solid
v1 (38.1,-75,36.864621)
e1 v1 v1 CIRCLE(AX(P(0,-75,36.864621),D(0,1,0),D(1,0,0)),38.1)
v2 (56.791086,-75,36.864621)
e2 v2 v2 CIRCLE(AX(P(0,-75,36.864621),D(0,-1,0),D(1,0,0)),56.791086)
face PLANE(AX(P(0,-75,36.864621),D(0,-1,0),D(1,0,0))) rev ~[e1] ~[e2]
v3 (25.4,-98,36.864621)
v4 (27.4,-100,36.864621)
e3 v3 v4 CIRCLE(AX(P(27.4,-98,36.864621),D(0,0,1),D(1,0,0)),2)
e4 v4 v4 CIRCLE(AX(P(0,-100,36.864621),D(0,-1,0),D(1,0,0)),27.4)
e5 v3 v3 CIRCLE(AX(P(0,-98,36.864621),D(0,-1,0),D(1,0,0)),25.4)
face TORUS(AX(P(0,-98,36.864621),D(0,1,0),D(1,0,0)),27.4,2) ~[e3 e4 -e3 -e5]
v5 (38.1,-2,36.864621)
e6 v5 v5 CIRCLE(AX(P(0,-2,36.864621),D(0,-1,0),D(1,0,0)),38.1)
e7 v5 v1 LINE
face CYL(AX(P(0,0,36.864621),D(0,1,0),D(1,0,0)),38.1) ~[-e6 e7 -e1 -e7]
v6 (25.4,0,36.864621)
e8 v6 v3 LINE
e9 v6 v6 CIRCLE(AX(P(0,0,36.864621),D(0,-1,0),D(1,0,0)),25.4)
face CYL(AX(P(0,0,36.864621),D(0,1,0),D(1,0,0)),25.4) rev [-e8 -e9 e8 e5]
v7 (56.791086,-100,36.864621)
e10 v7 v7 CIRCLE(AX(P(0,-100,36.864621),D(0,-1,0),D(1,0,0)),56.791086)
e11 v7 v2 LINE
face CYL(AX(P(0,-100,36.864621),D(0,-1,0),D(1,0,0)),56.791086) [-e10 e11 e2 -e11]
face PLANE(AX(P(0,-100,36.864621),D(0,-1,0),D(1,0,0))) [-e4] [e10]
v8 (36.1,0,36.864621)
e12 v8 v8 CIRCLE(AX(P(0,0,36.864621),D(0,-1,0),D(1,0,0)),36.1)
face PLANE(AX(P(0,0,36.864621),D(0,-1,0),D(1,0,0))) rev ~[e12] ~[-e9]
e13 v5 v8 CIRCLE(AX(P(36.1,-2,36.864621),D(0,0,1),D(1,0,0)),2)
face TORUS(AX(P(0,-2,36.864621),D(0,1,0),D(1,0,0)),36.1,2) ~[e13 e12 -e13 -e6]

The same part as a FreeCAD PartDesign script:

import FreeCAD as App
import Part
import Sketcher


def edges_at(feature, points):
    """Names of the edges that pass closest to the given points."""
    edges = feature.Shape.Edges
    near = lambda p: min(range(len(edges)), key=lambda i: edges[i].distToShape(Part.Vertex(*p))[0])
    return sorted({f"Edge{near(p) + 1}" for p in points})

doc = App.newDocument("Part")
body = doc.addObject("PartDesign::Body", "Body")

sketch1 = doc.addObject("Sketcher::SketchObject", "Sketch")
body.addObject(sketch1)
sketch1.AttachmentSupport = (doc.XZ_Plane, [""])
sketch1.MapMode = "FlatFace"
sketch1.addGeometry([
    Part.Circle(App.Vector(0, 36.864621, 0), App.Vector(0, 0, 1), 38.1),
    Part.Circle(App.Vector(0, 36.864621, 0), App.Vector(0, 0, 1), 25.4),
], False)
sketch1.addConstraint([
    Sketcher.Constraint("Coincident", 1, 3, 0, 3),
    Sketcher.Constraint("PointOnObject", 0, 3, -2),
    Sketcher.Constraint("Diameter", 0, 76.2),
    Sketcher.Constraint("Diameter", 1, 50.8),
    Sketcher.Constraint("DistanceY", -1, 1, 0, 3, 36.864621),
])
pad1 = doc.addObject("PartDesign::Pad", "Pad")
body.addObject(pad1)
pad1.Profile = sketch1
pad1.Length = 100

sketch2 = doc.addObject("Sketcher::SketchObject", "Sketch001")
body.addObject(sketch2)
sketch2.AttachmentSupport = (doc.XZ_Plane, [""])
sketch2.MapMode = "FlatFace"
sketch2.AttachmentOffset = App.Placement(App.Vector(0, 0, 100), App.Rotation())
sketch2.addGeometry([
    Part.Circle(App.Vector(0, 36.864621, 0), App.Vector(0, 0, 1), 56.791086),
    Part.Circle(App.Vector(0, 36.864621, 0), App.Vector(0, 0, 1), 25.414512),
], False)
sketch2.addConstraint([
    Sketcher.Constraint("Coincident", 1, 3, 0, 3),
    Sketcher.Constraint("PointOnObject", 0, 3, -2),
    Sketcher.Constraint("Diameter", 0, 113.582172),
    Sketcher.Constraint("Diameter", 1, 50.829024),
    Sketcher.Constraint("DistanceY", -1, 1, 0, 3, 36.864621),
])
pad2 = doc.addObject("PartDesign::Pad", "Pad001")
body.addObject(pad2)
pad2.Profile = sketch2
pad2.Length = 25
pad2.Reversed = True
doc.recompute()

fillet = doc.addObject("PartDesign::Fillet", "Fillet")
body.addObject(fillet)
fillet.Base = (pad2, edges_at(pad2, [(-38.1, 0, 36.865)]))
fillet.Radius = 2
doc.recompute()

fillet2 = doc.addObject("PartDesign::Fillet", "Fillet001")
body.addObject(fillet2)
fillet2.Base = (fillet, edges_at(fillet, [(-25.4, -100, 36.865)]))
fillet2.Radius = 2

doc.recompute()
